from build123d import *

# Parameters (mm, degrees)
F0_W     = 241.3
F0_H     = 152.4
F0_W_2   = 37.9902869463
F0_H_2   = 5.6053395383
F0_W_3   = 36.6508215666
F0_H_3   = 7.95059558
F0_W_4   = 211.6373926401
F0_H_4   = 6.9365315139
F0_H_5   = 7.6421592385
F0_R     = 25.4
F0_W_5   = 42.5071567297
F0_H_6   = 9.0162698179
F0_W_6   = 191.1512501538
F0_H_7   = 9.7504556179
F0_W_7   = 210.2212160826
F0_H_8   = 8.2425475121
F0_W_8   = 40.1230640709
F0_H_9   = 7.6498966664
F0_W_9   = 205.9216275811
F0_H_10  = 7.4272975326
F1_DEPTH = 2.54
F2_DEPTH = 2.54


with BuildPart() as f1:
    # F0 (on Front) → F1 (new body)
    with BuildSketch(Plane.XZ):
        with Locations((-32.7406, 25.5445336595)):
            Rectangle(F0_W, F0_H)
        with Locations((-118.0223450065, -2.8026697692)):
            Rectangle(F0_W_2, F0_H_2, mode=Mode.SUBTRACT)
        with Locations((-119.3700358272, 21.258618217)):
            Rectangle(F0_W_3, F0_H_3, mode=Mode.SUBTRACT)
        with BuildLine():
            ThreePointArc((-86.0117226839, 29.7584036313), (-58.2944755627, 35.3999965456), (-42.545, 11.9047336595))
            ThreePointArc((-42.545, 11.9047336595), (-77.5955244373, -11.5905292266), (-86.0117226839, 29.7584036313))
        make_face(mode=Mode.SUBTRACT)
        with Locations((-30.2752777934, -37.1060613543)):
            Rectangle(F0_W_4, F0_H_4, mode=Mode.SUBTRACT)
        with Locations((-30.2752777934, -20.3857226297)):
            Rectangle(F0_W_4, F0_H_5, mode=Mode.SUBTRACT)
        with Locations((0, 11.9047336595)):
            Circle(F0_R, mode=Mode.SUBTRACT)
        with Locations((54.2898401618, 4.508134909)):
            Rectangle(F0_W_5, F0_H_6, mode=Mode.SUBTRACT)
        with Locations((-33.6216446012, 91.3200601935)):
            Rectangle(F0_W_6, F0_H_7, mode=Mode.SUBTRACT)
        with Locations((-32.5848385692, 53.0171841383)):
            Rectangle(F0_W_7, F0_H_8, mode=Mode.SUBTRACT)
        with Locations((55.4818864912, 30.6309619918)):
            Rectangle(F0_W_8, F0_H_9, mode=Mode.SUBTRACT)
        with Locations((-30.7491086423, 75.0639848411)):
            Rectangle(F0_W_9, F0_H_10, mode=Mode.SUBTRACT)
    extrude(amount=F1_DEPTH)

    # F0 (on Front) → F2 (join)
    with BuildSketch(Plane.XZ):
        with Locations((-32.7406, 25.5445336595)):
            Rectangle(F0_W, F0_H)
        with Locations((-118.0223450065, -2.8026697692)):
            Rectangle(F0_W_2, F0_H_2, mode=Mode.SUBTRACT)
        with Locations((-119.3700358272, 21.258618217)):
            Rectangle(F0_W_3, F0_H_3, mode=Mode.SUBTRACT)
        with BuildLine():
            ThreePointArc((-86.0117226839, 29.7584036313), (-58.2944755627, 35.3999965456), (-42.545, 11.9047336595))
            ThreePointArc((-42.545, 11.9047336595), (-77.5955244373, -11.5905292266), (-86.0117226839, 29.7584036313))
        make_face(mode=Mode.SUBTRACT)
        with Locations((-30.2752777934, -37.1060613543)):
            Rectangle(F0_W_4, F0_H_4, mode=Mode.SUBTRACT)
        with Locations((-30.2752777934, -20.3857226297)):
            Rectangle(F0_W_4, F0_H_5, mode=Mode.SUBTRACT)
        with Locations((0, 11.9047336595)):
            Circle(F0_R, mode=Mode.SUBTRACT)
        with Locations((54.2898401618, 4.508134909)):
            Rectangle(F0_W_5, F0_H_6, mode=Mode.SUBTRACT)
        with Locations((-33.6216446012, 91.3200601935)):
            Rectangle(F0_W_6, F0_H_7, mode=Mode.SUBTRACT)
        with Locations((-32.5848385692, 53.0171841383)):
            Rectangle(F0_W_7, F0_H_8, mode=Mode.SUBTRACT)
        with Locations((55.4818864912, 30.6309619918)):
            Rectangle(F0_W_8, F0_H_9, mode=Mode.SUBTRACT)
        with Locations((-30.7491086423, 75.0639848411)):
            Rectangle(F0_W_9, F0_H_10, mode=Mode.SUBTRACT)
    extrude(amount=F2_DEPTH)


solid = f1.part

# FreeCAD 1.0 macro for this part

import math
import FreeCAD as App
import Part
import Sketcher

V = App.Vector
Q = App.Units.Quantity

doc = App.newDocument("Part")
body = doc.addObject("PartDesign::Body", "Body")

sketch1 = body.newObject("Sketcher::SketchObject", "Sketch")
sketch1.AttachmentSupport = (doc.getObject("XZ_Plane"), [""])
sketch1.MapMode = "FlatFace"
sketch1.addGeometry(Part.LineSegment(V(-153, 102, 0), V(-153, -51, 0)), False)
sketch1.addGeometry(Part.LineSegment(V(-153, -51, 0), V(88, -51, 0)), False)
sketch1.addGeometry(Part.LineSegment(V(88, -51, 0), V(88, 102, 0)), False)
sketch1.addGeometry(Part.LineSegment(V(88, 102, 0), V(-153, 102, 0)), False)
sketch1.addGeometry(Part.LineSegment(V(-99, -6, 0), V(-137, -6, 0)), False)
sketch1.addGeometry(Part.LineSegment(V(-137, -6, 0), V(-137, 0, 0)), False)
sketch1.addGeometry(Part.LineSegment(V(-137, 0, 0), V(-99, 0, 0)), False)
sketch1.addGeometry(Part.LineSegment(V(-99, 0, 0), V(-99, -6, 0)), False)
sketch1.addGeometry(Part.LineSegment(V(-101, 17, 0), V(-138, 17, 0)), False)
sketch1.addGeometry(Part.LineSegment(V(-138, 17, 0), V(-138, 25, 0)), False)
sketch1.addGeometry(Part.LineSegment(V(-138, 25, 0), V(-101, 25, 0)), False)
sketch1.addGeometry(Part.LineSegment(V(-101, 25, 0), V(-101, 17, 0)), False)
sketch1.addGeometry(Part.ArcOfCircle(Part.Circle(V(-68, 12, 0), V(0, 0, 1), 25), math.radians(135), math.radians(360)), False)
sketch1.addGeometry(Part.ArcOfCircle(Part.Circle(V(-68, 12, 0), V(0, 0, 1), 25), math.radians(0), math.radians(135)), False)
sketch1.addGeometry(Part.LineSegment(V(76, -41, 0), V(-136, -41, 0)), False)
sketch1.addGeometry(Part.LineSegment(V(-136, -41, 0), V(-136, -34, 0)), False)
sketch1.addGeometry(Part.LineSegment(V(-136, -34, 0), V(76, -34, 0)), False)
sketch1.addGeometry(Part.LineSegment(V(76, -34, 0), V(76, -41, 0)), False)
sketch1.addGeometry(Part.LineSegment(V(76, -24, 0), V(-136, -24, 0)), False)
sketch1.addGeometry(Part.LineSegment(V(-136, -24, 0), V(-136, -17, 0)), False)
sketch1.addGeometry(Part.LineSegment(V(-136, -17, 0), V(76, -17, 0)), False)
sketch1.addGeometry(Part.LineSegment(V(76, -17, 0), V(76, -24, 0)), False)
sketch1.addGeometry(Part.Circle(V(0, 12, 0), V(0, 0, 1), 25), False)
sketch1.addGeometry(Part.LineSegment(V(76, 0, 0), V(33, 0, 0)), False)
sketch1.addGeometry(Part.LineSegment(V(33, 0, 0), V(33, 9, 0)), False)
sketch1.addGeometry(Part.LineSegment(V(33, 9, 0), V(76, 9, 0)), False)
sketch1.addGeometry(Part.LineSegment(V(76, 9, 0), V(76, 0, 0)), False)
sketch1.addGeometry(Part.LineSegment(V(73, 49, 0), V(-138, 49, 0)), False)
sketch1.addGeometry(Part.LineSegment(V(-138, 49, 0), V(-138, 57, 0)), False)
sketch1.addGeometry(Part.LineSegment(V(-138, 57, 0), V(73, 57, 0)), False)
sketch1.addGeometry(Part.LineSegment(V(73, 57, 0), V(73, 49, 0)), False)
sketch1.addGeometry(Part.LineSegment(V(62, 86, 0), V(-129, 86, 0)), False)
sketch1.addGeometry(Part.LineSegment(V(-129, 86, 0), V(-129, 96, 0)), False)
sketch1.addGeometry(Part.LineSegment(V(-129, 96, 0), V(62, 96, 0)), False)
sketch1.addGeometry(Part.LineSegment(V(62, 96, 0), V(62, 86, 0)), False)
sketch1.addGeometry(Part.LineSegment(V(76, 27, 0), V(35, 27, 0)), False)
sketch1.addGeometry(Part.LineSegment(V(35, 27, 0), V(35, 34, 0)), False)
sketch1.addGeometry(Part.LineSegment(V(35, 34, 0), V(76, 34, 0)), False)
sketch1.addGeometry(Part.LineSegment(V(76, 34, 0), V(76, 27, 0)), False)
sketch1.addGeometry(Part.LineSegment(V(72, 71, 0), V(-134, 71, 0)), False)
sketch1.addGeometry(Part.LineSegment(V(-134, 71, 0), V(-134, 79, 0)), False)
sketch1.addGeometry(Part.LineSegment(V(-134, 79, 0), V(72, 79, 0)), False)
sketch1.addGeometry(Part.LineSegment(V(72, 79, 0), V(72, 71, 0)), False)
sketch1.addConstraint(Sketcher.Constraint("Coincident", 0, 2, 1, 1))
sketch1.addConstraint(Sketcher.Constraint("Coincident", 1, 2, 2, 1))
sketch1.addConstraint(Sketcher.Constraint("Coincident", 2, 2, 3, 1))
sketch1.addConstraint(Sketcher.Constraint("Coincident", 3, 2, 0, 1))
sketch1.addConstraint(Sketcher.Constraint("Coincident", 4, 2, 5, 1))
sketch1.addConstraint(Sketcher.Constraint("Coincident", 5, 2, 6, 1))
sketch1.addConstraint(Sketcher.Constraint("Coincident", 6, 2, 7, 1))
sketch1.addConstraint(Sketcher.Constraint("Coincident", 7, 2, 4, 1))
sketch1.addConstraint(Sketcher.Constraint("Coincident", 8, 2, 9, 1))
sketch1.addConstraint(Sketcher.Constraint("Coincident", 9, 2, 10, 1))
sketch1.addConstraint(Sketcher.Constraint("Coincident", 10, 2, 11, 1))
sketch1.addConstraint(Sketcher.Constraint("Coincident", 11, 2, 8, 1))
sketch1.addConstraint(Sketcher.Constraint("Tangent", 12, 1, 13, 2))
sketch1.addConstraint(Sketcher.Constraint("Coincident", 13, 1, 12, 2))
sketch1.addConstraint(Sketcher.Constraint("Coincident", 14, 2, 15, 1))
sketch1.addConstraint(Sketcher.Constraint("Coincident", 15, 2, 16, 1))
sketch1.addConstraint(Sketcher.Constraint("Coincident", 16, 2, 17, 1))
sketch1.addConstraint(Sketcher.Constraint("Coincident", 17, 2, 14, 1))
sketch1.addConstraint(Sketcher.Constraint("Coincident", 18, 2, 19, 1))
sketch1.addConstraint(Sketcher.Constraint("Coincident", 19, 2, 20, 1))
sketch1.addConstraint(Sketcher.Constraint("Coincident", 20, 2, 21, 1))
sketch1.addConstraint(Sketcher.Constraint("Coincident", 21, 2, 18, 1))
sketch1.addConstraint(Sketcher.Constraint("Coincident", 23, 2, 24, 1))
sketch1.addConstraint(Sketcher.Constraint("Coincident", 24, 2, 25, 1))
sketch1.addConstraint(Sketcher.Constraint("Coincident", 25, 2, 26, 1))
sketch1.addConstraint(Sketcher.Constraint("Coincident", 26, 2, 23, 1))
sketch1.addConstraint(Sketcher.Constraint("Coincident", 27, 2, 28, 1))
sketch1.addConstraint(Sketcher.Constraint("Coincident", 28, 2, 29, 1))
sketch1.addConstraint(Sketcher.Constraint("Coincident", 29, 2, 30, 1))
sketch1.addConstraint(Sketcher.Constraint("Coincident", 30, 2, 27, 1))
sketch1.addConstraint(Sketcher.Constraint("Coincident", 31, 2, 32, 1))
sketch1.addConstraint(Sketcher.Constraint("Coincident", 32, 2, 33, 1))
sketch1.addConstraint(Sketcher.Constraint("Coincident", 33, 2, 34, 1))
sketch1.addConstraint(Sketcher.Constraint("Coincident", 34, 2, 31, 1))
sketch1.addConstraint(Sketcher.Constraint("Coincident", 35, 2, 36, 1))
sketch1.addConstraint(Sketcher.Constraint("Coincident", 36, 2, 37, 1))
sketch1.addConstraint(Sketcher.Constraint("Coincident", 37, 2, 38, 1))
sketch1.addConstraint(Sketcher.Constraint("Coincident", 38, 2, 35, 1))
sketch1.addConstraint(Sketcher.Constraint("Coincident", 39, 2, 40, 1))
sketch1.addConstraint(Sketcher.Constraint("Coincident", 40, 2, 41, 1))
sketch1.addConstraint(Sketcher.Constraint("Coincident", 41, 2, 42, 1))
sketch1.addConstraint(Sketcher.Constraint("Coincident", 42, 2, 39, 1))
sketch1.addConstraint(Sketcher.Constraint("Vertical", 0))
sketch1.addConstraint(Sketcher.Constraint("Horizontal", 1))
sketch1.addConstraint(Sketcher.Constraint("Vertical", 2))
sketch1.addConstraint(Sketcher.Constraint("Horizontal", 3))
sketch1.addConstraint(Sketcher.Constraint("Horizontal", 4))
sketch1.addConstraint(Sketcher.Constraint("Vertical", 5))
sketch1.addConstraint(Sketcher.Constraint("Horizontal", 6))
sketch1.addConstraint(Sketcher.Constraint("Vertical", 7))
sketch1.addConstraint(Sketcher.Constraint("Horizontal", 8))
sketch1.addConstraint(Sketcher.Constraint("Vertical", 9))
sketch1.addConstraint(Sketcher.Constraint("Horizontal", 10))
sketch1.addConstraint(Sketcher.Constraint("Vertical", 11))
sketch1.addConstraint(Sketcher.Constraint("Horizontal", 14))
sketch1.addConstraint(Sketcher.Constraint("Vertical", 15))
sketch1.addConstraint(Sketcher.Constraint("Horizontal", 16))
sketch1.addConstraint(Sketcher.Constraint("Vertical", 17))
sketch1.addConstraint(Sketcher.Constraint("Horizontal", 18))
sketch1.addConstraint(Sketcher.Constraint("Vertical", 19))
sketch1.addConstraint(Sketcher.Constraint("Horizontal", 20))
sketch1.addConstraint(Sketcher.Constraint("Vertical", 21))
sketch1.addConstraint(Sketcher.Constraint("Horizontal", 23))
sketch1.addConstraint(Sketcher.Constraint("Vertical", 24))
sketch1.addConstraint(Sketcher.Constraint("Horizontal", 25))
sketch1.addConstraint(Sketcher.Constraint("Vertical", 26))
sketch1.addConstraint(Sketcher.Constraint("Horizontal", 27))
sketch1.addConstraint(Sketcher.Constraint("Vertical", 28))
sketch1.addConstraint(Sketcher.Constraint("Horizontal", 29))
sketch1.addConstraint(Sketcher.Constraint("Vertical", 30))
sketch1.addConstraint(Sketcher.Constraint("Horizontal", 31))
sketch1.addConstraint(Sketcher.Constraint("Vertical", 32))
sketch1.addConstraint(Sketcher.Constraint("Horizontal", 33))
sketch1.addConstraint(Sketcher.Constraint("Vertical", 34))
sketch1.addConstraint(Sketcher.Constraint("Horizontal", 35))
sketch1.addConstraint(Sketcher.Constraint("Vertical", 36))
sketch1.addConstraint(Sketcher.Constraint("Horizontal", 37))
sketch1.addConstraint(Sketcher.Constraint("Vertical", 38))
sketch1.addConstraint(Sketcher.Constraint("Horizontal", 39))
sketch1.addConstraint(Sketcher.Constraint("Vertical", 40))
sketch1.addConstraint(Sketcher.Constraint("Horizontal", 41))
sketch1.addConstraint(Sketcher.Constraint("Vertical", 42))
sketch1.addConstraint(Sketcher.Constraint("Equal", 13, 22))
sketch1.addConstraint(Sketcher.Constraint("PointOnObject", 22, 3, -2))
sketch1.addConstraint(Sketcher.Constraint("PointOnObject", 5, 2, -1))
sketch1.addConstraint(Sketcher.Constraint("PointOnObject", 23, 2, -1))
sketch1.addConstraint(Sketcher.Constraint("Horizontal", 13, 3, 22, 3))
sketch1.addConstraint(Sketcher.Constraint("Horizontal", 22, 3, 13, 1))
sketch1.addConstraint(Sketcher.Constraint("Vertical", 15, 2, 18, 2))
sketch1.addConstraint(Sketcher.Constraint("Vertical", 17, 2, 20, 2))
sketch1.addConstraint(Sketcher.Constraint("Vertical", 21, 2, 25, 2))
sketch1.addConstraint(Sketcher.Constraint("Vertical", 9, 2, 27, 2))
sketch1.addConstraint(Sketcher.Constraint("Vertical", 26, 2, 37, 2))
sketch1.addConstraint(Sketcher.Constraint("Diameter", 22, Q("2 in")))
sketch1.addConstraint(Sketcher.Constraint("DistanceY", 0, 2, 0, 1, Q("6 in")))
sketch1.addConstraint(Sketcher.Constraint("DistanceX", 1, 1, 1, 2, Q("9.5 in")))
sketch1.addConstraint(Sketcher.Constraint("DistanceX", 12, 3, -1, 1, Q("2.675 in")))
sketch1.addConstraint(Sketcher.Constraint("DistanceX", 0, 2, -1, 1, Q("6.039 in")))
sketch1.addConstraint(Sketcher.Constraint("DistanceY", 0, 2, 12, 3, Q("2.463 in")))
sketch1.addConstraint(Sketcher.Constraint("DistanceY", 8, 2, 28, 2, Q("1.5690999 in")))
sketch1.addConstraint(Sketcher.Constraint("DistanceX", 8, 2, 8, 1, Q("36.650822 mm")))
sketch1.addConstraint(Sketcher.Constraint("DistanceX", 31, 2, 31, 1, Q("191.15125 mm")))
sketch1.addConstraint(Sketcher.Constraint("DistanceY", 5, 1, 5, 2, Q("5.60534 mm")))
sketch1.addConstraint(Sketcher.Constraint("DistanceY", 15, 1, 15, 2, Q("6.936532 mm")))
sketch1.addConstraint(Sketcher.Constraint("DistanceY", 19, 1, 19, 2, Q("7.642159 mm")))
sketch1.addConstraint(Sketcher.Constraint("DistanceY", 24, 1, 24, 2, Q("9.01627 mm")))
sketch1.addConstraint(Sketcher.Constraint("DistanceX", 6, 2, -1, 1, Q("99.027202 mm")))
sketch1.addConstraint(Sketcher.Constraint("DistanceY", 31, 2, 3, 2, Q("15.299701 mm")))
sketch1.addConstraint(Sketcher.Constraint("DistanceY", 36, 2, 30, 2, Q("14.44 mm")))
sketch1.addConstraint(Sketcher.Constraint("DistanceY", 40, 2, 31, 2, Q("7.667199 mm")))
sketch1.addConstraint(Sketcher.Constraint("DistanceX", 4, 2, 4, 1, Q("37.990287 mm")))
sketch1.addConstraint(Sketcher.Constraint("DistanceX", 14, 2, 14, 1, Q("211.637393 mm")))
sketch1.addConstraint(Sketcher.Constraint("DistanceX", 23, 2, 23, 1, Q("42.507157 mm")))
sketch1.addConstraint(Sketcher.Constraint("DistanceX", 27, 2, 27, 1, Q("210.221216 mm")))
sketch1.addConstraint(Sketcher.Constraint("DistanceX", 35, 2, 35, 1, Q("40.123064 mm")))
sketch1.addConstraint(Sketcher.Constraint("DistanceX", 39, 2, 39, 1, Q("205.921628 mm")))
sketch1.addConstraint(Sketcher.Constraint("DistanceY", 9, 1, 9, 2, Q("7.950596 mm")))
sketch1.addConstraint(Sketcher.Constraint("DistanceY", 28, 1, 28, 2, Q("8.242548 mm")))
sketch1.addConstraint(Sketcher.Constraint("DistanceY", 32, 1, 32, 2, Q("9.750456 mm")))
sketch1.addConstraint(Sketcher.Constraint("DistanceY", 36, 1, 36, 2, Q("7.649897 mm")))
sketch1.addConstraint(Sketcher.Constraint("DistanceY", 40, 1, 40, 2, Q("7.427298 mm")))
sketch1.addConstraint(Sketcher.Constraint("DistanceY", -1, 1, 8, 2, Q("17.28332 mm")))
sketch1.addConstraint(Sketcher.Constraint("DistanceX", -1, 1, 16, 2, Q("75.543419 mm")))
sketch1.addConstraint(Sketcher.Constraint("DistanceX", -1, 1, 29, 2, Q("72.525769 mm")))
sketch1.addConstraint(Sketcher.Constraint("DistanceX", 31, 2, -1, 1, Q("129.19727 mm")))
sketch1.addConstraint(Sketcher.Constraint("DistanceY", -1, 1, 32, 2, Q("96.195288 mm")))
sketch1.addConstraint(Sketcher.Constraint("DistanceY", 13, 3, 12, 1, Q("17.85367 mm")))
sketch1.addConstraint(Sketcher.Constraint("DistanceY", 0, 2, 14, 2, Q("10.081139 mm")))
sketch1.addConstraint(Sketcher.Constraint("DistanceY", 18, 2, -1, 1, Q("24.206802 mm")))
sketch1.addConstraint(Sketcher.Constraint("DistanceX", 39, 2, -1, 1, Q("133.709922 mm")))
pad1 = body.newObject("PartDesign::Pad", "Pad")
pad1.Profile = sketch1
pad1.Length = Q("0.1 in")

sketch2 = body.newObject("Sketcher::SketchObject", "Sketch001")
sketch2.AttachmentSupport = (doc.getObject("XZ_Plane"), [""])
sketch2.MapMode = "FlatFace"
sketch2.addGeometry(Part.LineSegment(V(-153, 102, 0), V(-153, -51, 0)), False)
sketch2.addGeometry(Part.LineSegment(V(-153, -51, 0), V(88, -51, 0)), False)
sketch2.addGeometry(Part.LineSegment(V(88, -51, 0), V(88, 102, 0)), False)
sketch2.addGeometry(Part.LineSegment(V(88, 102, 0), V(-153, 102, 0)), False)
sketch2.addGeometry(Part.LineSegment(V(-99, -6, 0), V(-137, -6, 0)), False)
sketch2.addGeometry(Part.LineSegment(V(-137, -6, 0), V(-137, 0, 0)), False)
sketch2.addGeometry(Part.LineSegment(V(-137, 0, 0), V(-99, 0, 0)), False)
sketch2.addGeometry(Part.LineSegment(V(-99, 0, 0), V(-99, -6, 0)), False)
sketch2.addGeometry(Part.LineSegment(V(-101, 17, 0), V(-138, 17, 0)), False)
sketch2.addGeometry(Part.LineSegment(V(-138, 17, 0), V(-138, 25, 0)), False)
sketch2.addGeometry(Part.LineSegment(V(-138, 25, 0), V(-101, 25, 0)), False)
sketch2.addGeometry(Part.LineSegment(V(-101, 25, 0), V(-101, 17, 0)), False)
sketch2.addGeometry(Part.ArcOfCircle(Part.Circle(V(-68, 12, 0), V(0, 0, 1), 25), math.radians(135), math.radians(360)), False)
sketch2.addGeometry(Part.ArcOfCircle(Part.Circle(V(-68, 12, 0), V(0, 0, 1), 25), math.radians(0), math.radians(135)), False)
sketch2.addGeometry(Part.LineSegment(V(76, -41, 0), V(-136, -41, 0)), False)
sketch2.addGeometry(Part.LineSegment(V(-136, -41, 0), V(-136, -34, 0)), False)
sketch2.addGeometry(Part.LineSegment(V(-136, -34, 0), V(76, -34, 0)), False)
sketch2.addGeometry(Part.LineSegment(V(76, -34, 0), V(76, -41, 0)), False)
sketch2.addGeometry(Part.LineSegment(V(76, -24, 0), V(-136, -24, 0)), False)
sketch2.addGeometry(Part.LineSegment(V(-136, -24, 0), V(-136, -17, 0)), False)
sketch2.addGeometry(Part.LineSegment(V(-136, -17, 0), V(76, -17, 0)), False)
sketch2.addGeometry(Part.LineSegment(V(76, -17, 0), V(76, -24, 0)), False)
sketch2.addGeometry(Part.Circle(V(0, 12, 0), V(0, 0, 1), 25), False)
sketch2.addGeometry(Part.LineSegment(V(76, 0, 0), V(33, 0, 0)), False)
sketch2.addGeometry(Part.LineSegment(V(33, 0, 0), V(33, 9, 0)), False)
sketch2.addGeometry(Part.LineSegment(V(33, 9, 0), V(76, 9, 0)), False)
sketch2.addGeometry(Part.LineSegment(V(76, 9, 0), V(76, 0, 0)), False)
sketch2.addGeometry(Part.LineSegment(V(73, 49, 0), V(-138, 49, 0)), False)
sketch2.addGeometry(Part.LineSegment(V(-138, 49, 0), V(-138, 57, 0)), False)
sketch2.addGeometry(Part.LineSegment(V(-138, 57, 0), V(73, 57, 0)), False)
sketch2.addGeometry(Part.LineSegment(V(73, 57, 0), V(73, 49, 0)), False)
sketch2.addGeometry(Part.LineSegment(V(62, 86, 0), V(-129, 86, 0)), False)
sketch2.addGeometry(Part.LineSegment(V(-129, 86, 0), V(-129, 96, 0)), False)
sketch2.addGeometry(Part.LineSegment(V(-129, 96, 0), V(62, 96, 0)), False)
sketch2.addGeometry(Part.LineSegment(V(62, 96, 0), V(62, 86, 0)), False)
sketch2.addGeometry(Part.LineSegment(V(76, 27, 0), V(35, 27, 0)), False)
sketch2.addGeometry(Part.LineSegment(V(35, 27, 0), V(35, 34, 0)), False)
sketch2.addGeometry(Part.LineSegment(V(35, 34, 0), V(76, 34, 0)), False)
sketch2.addGeometry(Part.LineSegment(V(76, 34, 0), V(76, 27, 0)), False)
sketch2.addGeometry(Part.LineSegment(V(72, 71, 0), V(-134, 71, 0)), False)
sketch2.addGeometry(Part.LineSegment(V(-134, 71, 0), V(-134, 79, 0)), False)
sketch2.addGeometry(Part.LineSegment(V(-134, 79, 0), V(72, 79, 0)), False)
sketch2.addGeometry(Part.LineSegment(V(72, 79, 0), V(72, 71, 0)), False)
sketch2.addConstraint(Sketcher.Constraint("Coincident", 0, 2, 1, 1))
sketch2.addConstraint(Sketcher.Constraint("Coincident", 1, 2, 2, 1))
sketch2.addConstraint(Sketcher.Constraint("Coincident", 2, 2, 3, 1))
sketch2.addConstraint(Sketcher.Constraint("Coincident", 3, 2, 0, 1))
sketch2.addConstraint(Sketcher.Constraint("Coincident", 4, 2, 5, 1))
sketch2.addConstraint(Sketcher.Constraint("Coincident", 5, 2, 6, 1))
sketch2.addConstraint(Sketcher.Constraint("Coincident", 6, 2, 7, 1))
sketch2.addConstraint(Sketcher.Constraint("Coincident", 7, 2, 4, 1))
sketch2.addConstraint(Sketcher.Constraint("Coincident", 8, 2, 9, 1))
sketch2.addConstraint(Sketcher.Constraint("Coincident", 9, 2, 10, 1))
sketch2.addConstraint(Sketcher.Constraint("Coincident", 10, 2, 11, 1))
sketch2.addConstraint(Sketcher.Constraint("Coincident", 11, 2, 8, 1))
sketch2.addConstraint(Sketcher.Constraint("Tangent", 12, 1, 13, 2))
sketch2.addConstraint(Sketcher.Constraint("Coincident", 13, 1, 12, 2))
sketch2.addConstraint(Sketcher.Constraint("Coincident", 14, 2, 15, 1))
sketch2.addConstraint(Sketcher.Constraint("Coincident", 15, 2, 16, 1))
sketch2.addConstraint(Sketcher.Constraint("Coincident", 16, 2, 17, 1))
sketch2.addConstraint(Sketcher.Constraint("Coincident", 17, 2, 14, 1))
sketch2.addConstraint(Sketcher.Constraint("Coincident", 18, 2, 19, 1))
sketch2.addConstraint(Sketcher.Constraint("Coincident", 19, 2, 20, 1))
sketch2.addConstraint(Sketcher.Constraint("Coincident", 20, 2, 21, 1))
sketch2.addConstraint(Sketcher.Constraint("Coincident", 21, 2, 18, 1))
sketch2.addConstraint(Sketcher.Constraint("Coincident", 23, 2, 24, 1))
sketch2.addConstraint(Sketcher.Constraint("Coincident", 24, 2, 25, 1))
sketch2.addConstraint(Sketcher.Constraint("Coincident", 25, 2, 26, 1))
sketch2.addConstraint(Sketcher.Constraint("Coincident", 26, 2, 23, 1))
sketch2.addConstraint(Sketcher.Constraint("Coincident", 27, 2, 28, 1))
sketch2.addConstraint(Sketcher.Constraint("Coincident", 28, 2, 29, 1))
sketch2.addConstraint(Sketcher.Constraint("Coincident", 29, 2, 30, 1))
sketch2.addConstraint(Sketcher.Constraint("Coincident", 30, 2, 27, 1))
sketch2.addConstraint(Sketcher.Constraint("Coincident", 31, 2, 32, 1))
sketch2.addConstraint(Sketcher.Constraint("Coincident", 32, 2, 33, 1))
sketch2.addConstraint(Sketcher.Constraint("Coincident", 33, 2, 34, 1))
sketch2.addConstraint(Sketcher.Constraint("Coincident", 34, 2, 31, 1))
sketch2.addConstraint(Sketcher.Constraint("Coincident", 35, 2, 36, 1))
sketch2.addConstraint(Sketcher.Constraint("Coincident", 36, 2, 37, 1))
sketch2.addConstraint(Sketcher.Constraint("Coincident", 37, 2, 38, 1))
sketch2.addConstraint(Sketcher.Constraint("Coincident", 38, 2, 35, 1))
sketch2.addConstraint(Sketcher.Constraint("Coincident", 39, 2, 40, 1))
sketch2.addConstraint(Sketcher.Constraint("Coincident", 40, 2, 41, 1))
sketch2.addConstraint(Sketcher.Constraint("Coincident", 41, 2, 42, 1))
sketch2.addConstraint(Sketcher.Constraint("Coincident", 42, 2, 39, 1))
sketch2.addConstraint(Sketcher.Constraint("Vertical", 0))
sketch2.addConstraint(Sketcher.Constraint("Horizontal", 1))
sketch2.addConstraint(Sketcher.Constraint("Vertical", 2))
sketch2.addConstraint(Sketcher.Constraint("Horizontal", 3))
sketch2.addConstraint(Sketcher.Constraint("Horizontal", 4))
sketch2.addConstraint(Sketcher.Constraint("Vertical", 5))
sketch2.addConstraint(Sketcher.Constraint("Horizontal", 6))
sketch2.addConstraint(Sketcher.Constraint("Vertical", 7))
sketch2.addConstraint(Sketcher.Constraint("Horizontal", 8))
sketch2.addConstraint(Sketcher.Constraint("Vertical", 9))
sketch2.addConstraint(Sketcher.Constraint("Horizontal", 10))
sketch2.addConstraint(Sketcher.Constraint("Vertical", 11))
sketch2.addConstraint(Sketcher.Constraint("Horizontal", 14))
sketch2.addConstraint(Sketcher.Constraint("Vertical", 15))
sketch2.addConstraint(Sketcher.Constraint("Horizontal", 16))
sketch2.addConstraint(Sketcher.Constraint("Vertical", 17))
sketch2.addConstraint(Sketcher.Constraint("Horizontal", 18))
sketch2.addConstraint(Sketcher.Constraint("Vertical", 19))
sketch2.addConstraint(Sketcher.Constraint("Horizontal", 20))
sketch2.addConstraint(Sketcher.Constraint("Vertical", 21))
sketch2.addConstraint(Sketcher.Constraint("Horizontal", 23))
sketch2.addConstraint(Sketcher.Constraint("Vertical", 24))
sketch2.addConstraint(Sketcher.Constraint("Horizontal", 25))
sketch2.addConstraint(Sketcher.Constraint("Vertical", 26))
sketch2.addConstraint(Sketcher.Constraint("Horizontal", 27))
sketch2.addConstraint(Sketcher.Constraint("Vertical", 28))
sketch2.addConstraint(Sketcher.Constraint("Horizontal", 29))
sketch2.addConstraint(Sketcher.Constraint("Vertical", 30))
sketch2.addConstraint(Sketcher.Constraint("Horizontal", 31))
sketch2.addConstraint(Sketcher.Constraint("Vertical", 32))
sketch2.addConstraint(Sketcher.Constraint("Horizontal", 33))
sketch2.addConstraint(Sketcher.Constraint("Vertical", 34))
sketch2.addConstraint(Sketcher.Constraint("Horizontal", 35))
sketch2.addConstraint(Sketcher.Constraint("Vertical", 36))
sketch2.addConstraint(Sketcher.Constraint("Horizontal", 37))
sketch2.addConstraint(Sketcher.Constraint("Vertical", 38))
sketch2.addConstraint(Sketcher.Constraint("Horizontal", 39))
sketch2.addConstraint(Sketcher.Constraint("Vertical", 40))
sketch2.addConstraint(Sketcher.Constraint("Horizontal", 41))
sketch2.addConstraint(Sketcher.Constraint("Vertical", 42))
sketch2.addConstraint(Sketcher.Constraint("Equal", 13, 22))
sketch2.addConstraint(Sketcher.Constraint("PointOnObject", 22, 3, -2))
sketch2.addConstraint(Sketcher.Constraint("PointOnObject", 5, 2, -1))
sketch2.addConstraint(Sketcher.Constraint("PointOnObject", 23, 2, -1))
sketch2.addConstraint(Sketcher.Constraint("Horizontal", 13, 3, 22, 3))
sketch2.addConstraint(Sketcher.Constraint("Horizontal", 22, 3, 13, 1))
sketch2.addConstraint(Sketcher.Constraint("Vertical", 15, 2, 18, 2))
sketch2.addConstraint(Sketcher.Constraint("Vertical", 17, 2, 20, 2))
sketch2.addConstraint(Sketcher.Constraint("Vertical", 21, 2, 25, 2))
sketch2.addConstraint(Sketcher.Constraint("Vertical", 9, 2, 27, 2))
sketch2.addConstraint(Sketcher.Constraint("Vertical", 26, 2, 37, 2))
sketch2.addConstraint(Sketcher.Constraint("Diameter", 22, Q("2 in")))
sketch2.addConstraint(Sketcher.Constraint("DistanceY", 0, 2, 0, 1, Q("6 in")))
sketch2.addConstraint(Sketcher.Constraint("DistanceX", 1, 1, 1, 2, Q("9.5 in")))
sketch2.addConstraint(Sketcher.Constraint("DistanceX", 12, 3, -1, 1, Q("2.675 in")))
sketch2.addConstraint(Sketcher.Constraint("DistanceX", 0, 2, -1, 1, Q("6.039 in")))
sketch2.addConstraint(Sketcher.Constraint("DistanceY", 0, 2, 12, 3, Q("2.463 in")))
sketch2.addConstraint(Sketcher.Constraint("DistanceY", 8, 2, 28, 2, Q("1.5690999 in")))
sketch2.addConstraint(Sketcher.Constraint("DistanceX", 8, 2, 8, 1, Q("36.650822 mm")))
sketch2.addConstraint(Sketcher.Constraint("DistanceX", 31, 2, 31, 1, Q("191.15125 mm")))
sketch2.addConstraint(Sketcher.Constraint("DistanceY", 5, 1, 5, 2, Q("5.60534 mm")))
sketch2.addConstraint(Sketcher.Constraint("DistanceY", 15, 1, 15, 2, Q("6.936532 mm")))
sketch2.addConstraint(Sketcher.Constraint("DistanceY", 19, 1, 19, 2, Q("7.642159 mm")))
sketch2.addConstraint(Sketcher.Constraint("DistanceY", 24, 1, 24, 2, Q("9.01627 mm")))
sketch2.addConstraint(Sketcher.Constraint("DistanceX", 6, 2, -1, 1, Q("99.027202 mm")))
sketch2.addConstraint(Sketcher.Constraint("DistanceY", 31, 2, 3, 2, Q("15.299701 mm")))
sketch2.addConstraint(Sketcher.Constraint("DistanceY", 36, 2, 30, 2, Q("14.44 mm")))
sketch2.addConstraint(Sketcher.Constraint("DistanceY", 40, 2, 31, 2, Q("7.667199 mm")))
sketch2.addConstraint(Sketcher.Constraint("DistanceX", 4, 2, 4, 1, Q("37.990287 mm")))
sketch2.addConstraint(Sketcher.Constraint("DistanceX", 14, 2, 14, 1, Q("211.637393 mm")))
sketch2.addConstraint(Sketcher.Constraint("DistanceX", 23, 2, 23, 1, Q("42.507157 mm")))
sketch2.addConstraint(Sketcher.Constraint("DistanceX", 27, 2, 27, 1, Q("210.221216 mm")))
sketch2.addConstraint(Sketcher.Constraint("DistanceX", 35, 2, 35, 1, Q("40.123064 mm")))
sketch2.addConstraint(Sketcher.Constraint("DistanceX", 39, 2, 39, 1, Q("205.921628 mm")))
sketch2.addConstraint(Sketcher.Constraint("DistanceY", 9, 1, 9, 2, Q("7.950596 mm")))
sketch2.addConstraint(Sketcher.Constraint("DistanceY", 28, 1, 28, 2, Q("8.242548 mm")))
sketch2.addConstraint(Sketcher.Constraint("DistanceY", 32, 1, 32, 2, Q("9.750456 mm")))
sketch2.addConstraint(Sketcher.Constraint("DistanceY", 36, 1, 36, 2, Q("7.649897 mm")))
sketch2.addConstraint(Sketcher.Constraint("DistanceY", 40, 1, 40, 2, Q("7.427298 mm")))
sketch2.addConstraint(Sketcher.Constraint("DistanceY", -1, 1, 8, 2, Q("17.28332 mm")))
sketch2.addConstraint(Sketcher.Constraint("DistanceX", -1, 1, 16, 2, Q("75.543419 mm")))
sketch2.addConstraint(Sketcher.Constraint("DistanceX", -1, 1, 29, 2, Q("72.525769 mm")))
sketch2.addConstraint(Sketcher.Constraint("DistanceX", 31, 2, -1, 1, Q("129.19727 mm")))
sketch2.addConstraint(Sketcher.Constraint("DistanceY", -1, 1, 32, 2, Q("96.195288 mm")))
sketch2.addConstraint(Sketcher.Constraint("DistanceY", 13, 3, 12, 1, Q("17.85367 mm")))
sketch2.addConstraint(Sketcher.Constraint("DistanceY", 0, 2, 14, 2, Q("10.081139 mm")))
sketch2.addConstraint(Sketcher.Constraint("DistanceY", 18, 2, -1, 1, Q("24.206802 mm")))
sketch2.addConstraint(Sketcher.Constraint("DistanceX", 39, 2, -1, 1, Q("133.709922 mm")))
pad2 = body.newObject("PartDesign::Pad", "Pad001")
pad2.Profile = sketch2
pad2.Length = Q("0.1 in")

doc.recompute()
